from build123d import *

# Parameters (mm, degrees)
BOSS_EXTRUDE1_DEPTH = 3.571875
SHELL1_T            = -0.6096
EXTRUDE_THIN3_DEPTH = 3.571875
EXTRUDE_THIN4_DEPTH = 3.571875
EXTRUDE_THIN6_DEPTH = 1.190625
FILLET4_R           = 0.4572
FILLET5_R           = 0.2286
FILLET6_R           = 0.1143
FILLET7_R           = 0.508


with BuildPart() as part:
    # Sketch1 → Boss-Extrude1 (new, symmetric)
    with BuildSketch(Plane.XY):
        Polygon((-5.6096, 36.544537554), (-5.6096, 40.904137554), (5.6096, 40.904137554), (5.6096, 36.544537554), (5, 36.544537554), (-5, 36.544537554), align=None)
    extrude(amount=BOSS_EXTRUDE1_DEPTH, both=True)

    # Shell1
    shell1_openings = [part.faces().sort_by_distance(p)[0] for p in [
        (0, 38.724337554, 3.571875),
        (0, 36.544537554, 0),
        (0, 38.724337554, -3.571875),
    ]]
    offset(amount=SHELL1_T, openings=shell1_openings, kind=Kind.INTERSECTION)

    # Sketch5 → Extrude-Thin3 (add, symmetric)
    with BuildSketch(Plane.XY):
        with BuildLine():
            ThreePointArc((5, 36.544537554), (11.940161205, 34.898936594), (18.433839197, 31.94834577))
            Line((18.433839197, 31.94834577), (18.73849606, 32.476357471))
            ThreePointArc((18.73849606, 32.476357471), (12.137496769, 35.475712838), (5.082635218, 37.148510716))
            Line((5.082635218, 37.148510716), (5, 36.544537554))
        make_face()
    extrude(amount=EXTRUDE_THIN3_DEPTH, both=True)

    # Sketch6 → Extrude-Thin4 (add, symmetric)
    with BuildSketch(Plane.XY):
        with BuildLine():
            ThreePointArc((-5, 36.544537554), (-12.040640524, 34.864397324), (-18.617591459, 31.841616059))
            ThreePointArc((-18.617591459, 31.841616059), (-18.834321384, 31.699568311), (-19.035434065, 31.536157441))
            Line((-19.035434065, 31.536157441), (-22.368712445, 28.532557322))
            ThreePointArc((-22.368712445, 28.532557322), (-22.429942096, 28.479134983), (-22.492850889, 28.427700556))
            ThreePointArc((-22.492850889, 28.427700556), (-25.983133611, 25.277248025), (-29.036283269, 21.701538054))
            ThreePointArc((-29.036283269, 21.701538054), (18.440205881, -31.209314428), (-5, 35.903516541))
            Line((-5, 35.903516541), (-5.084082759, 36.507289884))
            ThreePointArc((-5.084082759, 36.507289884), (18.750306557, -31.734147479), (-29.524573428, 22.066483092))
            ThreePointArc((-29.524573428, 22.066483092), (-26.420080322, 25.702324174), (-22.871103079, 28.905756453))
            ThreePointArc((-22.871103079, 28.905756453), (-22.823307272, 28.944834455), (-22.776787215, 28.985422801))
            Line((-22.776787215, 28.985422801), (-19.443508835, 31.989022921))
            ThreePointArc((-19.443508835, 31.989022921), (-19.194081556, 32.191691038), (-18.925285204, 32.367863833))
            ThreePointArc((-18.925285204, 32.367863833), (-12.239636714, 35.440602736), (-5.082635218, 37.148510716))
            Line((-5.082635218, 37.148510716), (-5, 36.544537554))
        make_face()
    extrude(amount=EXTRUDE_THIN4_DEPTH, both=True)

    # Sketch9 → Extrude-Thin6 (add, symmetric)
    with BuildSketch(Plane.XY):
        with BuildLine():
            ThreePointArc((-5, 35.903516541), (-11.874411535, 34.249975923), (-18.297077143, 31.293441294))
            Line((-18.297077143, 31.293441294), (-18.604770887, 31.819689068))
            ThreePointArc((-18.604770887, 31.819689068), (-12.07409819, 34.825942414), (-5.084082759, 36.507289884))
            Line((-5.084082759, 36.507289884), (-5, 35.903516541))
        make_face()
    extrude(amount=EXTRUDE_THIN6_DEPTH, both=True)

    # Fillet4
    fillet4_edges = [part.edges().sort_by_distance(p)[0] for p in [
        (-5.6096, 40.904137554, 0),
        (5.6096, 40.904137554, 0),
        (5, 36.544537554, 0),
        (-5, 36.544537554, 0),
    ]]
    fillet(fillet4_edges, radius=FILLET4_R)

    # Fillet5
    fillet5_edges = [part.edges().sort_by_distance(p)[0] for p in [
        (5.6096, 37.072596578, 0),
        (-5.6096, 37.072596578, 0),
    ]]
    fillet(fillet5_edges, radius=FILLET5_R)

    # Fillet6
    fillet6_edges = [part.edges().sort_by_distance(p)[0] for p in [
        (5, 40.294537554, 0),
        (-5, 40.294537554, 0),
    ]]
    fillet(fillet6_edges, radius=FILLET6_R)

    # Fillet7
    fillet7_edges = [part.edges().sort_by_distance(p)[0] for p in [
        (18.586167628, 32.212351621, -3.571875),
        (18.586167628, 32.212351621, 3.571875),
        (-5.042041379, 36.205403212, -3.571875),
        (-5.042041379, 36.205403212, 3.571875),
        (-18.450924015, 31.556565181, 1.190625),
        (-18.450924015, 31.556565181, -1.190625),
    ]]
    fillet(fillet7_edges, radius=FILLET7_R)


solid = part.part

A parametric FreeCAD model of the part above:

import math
import FreeCAD as App
import Part
import Sketcher
Q = App.Units.Quantity


def edges_at(feature, points):
    """Names of the edges that pass closest to the given points."""
    edges = feature.Shape.Edges
    near = lambda p: min(range(len(edges)), key=lambda i: edges[i].distToShape(Part.Vertex(*p))[0])
    return sorted({f"Edge{near(p) + 1}" for p in points})


def faces_at(feature, points):
    """Names of the faces that lie closest to the given points."""
    faces = feature.Shape.Faces
    near = lambda p: min(range(len(faces)), key=lambda i: faces[i].distToShape(Part.Vertex(*p))[0])
    return sorted({f"Face{near(p) + 1}" for p in points})


def add_polygon(sketch, points):
    """Adds a closed chain of lines whose ends are joined by coincident constraints."""
    first, n = sketch.GeometryCount, len(points)
    for a, b in zip(points, points[1:] + points[:1]):
        sketch.addGeometry(Part.LineSegment(App.Vector(*a, 0), App.Vector(*b, 0)), False)
    for i in range(n):
        sketch.addConstraint(Sketcher.Constraint("Coincident", first + i, 2, first + (i + 1) % n, 1))

doc = App.newDocument("Part")
body = doc.addObject("PartDesign::Body", "Body")

# Sketch on XY plane
sketch1 = body.newObject("Sketcher::SketchObject", "Sketch")
sketch1.AttachmentSupport = (doc.getObject("XY_Plane"), [""])
sketch1.MapMode = "FlatFace"
add_polygon(sketch1, [(-5.6096, 40.904138), (-5.6096, 36.544538), (5.6096, 36.544538), (5.6096, 40.904138)])  # lines 0-3
sketch1.addConstraint(Sketcher.Constraint("Vertical", 0))
sketch1.addConstraint(Sketcher.Constraint("Horizontal", 1))
sketch1.addConstraint(Sketcher.Constraint("Vertical", 2))
sketch1.addConstraint(Sketcher.Constraint("Horizontal", 3))
sketch1.addConstraint(Sketcher.Constraint("DistanceX", 1, 1, 1, 2, 11.2192))
sketch1.addConstraint(Sketcher.Constraint("DistanceY", 0, 2, 0, 1, 4.3596))
sketch1.addConstraint(Sketcher.Constraint("DistanceX", 0, 2, -1, 1, 5.6096))
sketch1.addConstraint(Sketcher.Constraint("DistanceY", -1, 1, 0, 2, 36.544538))
pad1 = body.newObject("PartDesign::Pad", "Pad")
pad1.Profile = sketch1
pad1.Length = Q("0.28125 in")
pad1.Midplane = True
doc.recompute()

thickness = body.newObject("PartDesign::Thickness", "Thickness")
thickness.Base = (pad1, faces_at(pad1, [(0, 38.724, 3.572), (0, 36.545, 0), (0, 38.724, -3.572)]))
thickness.Value = Q("0.024 in")
thickness.Reversed = True
thickness.Join = "Intersection"

# Sketch on XY plane
sketch2 = body.newObject("Sketcher::SketchObject", "Sketch001")
sketch2.AttachmentSupport = (doc.getObject("XY_Plane"), [""])
sketch2.MapMode = "FlatFace"
sketch2.addGeometry(Part.ArcOfCircle(Part.Circle(App.Vector(0, 0, 0), App.Vector(0, 0, 1), 36.885), math.radians(60.015533), math.radians(82.209202)), False)
sketch2.addGeometry(Part.LineSegment(App.Vector(18.433839, 31.948346, 0), App.Vector(18.738496, 32.476357, 0)), False)
sketch2.addGeometry(Part.ArcOfCircle(Part.Circle(App.Vector(0, 0, 0), App.Vector(0, 0, 1), 37.4946), math.radians(60.015533), math.radians(82.209202)), False)
sketch2.addGeometry(Part.LineSegment(App.Vector(5.082635, 37.148511, 0), App.Vector(5, 36.544538, 0)), False)
sketch2.addConstraint(Sketcher.Constraint("Coincident", 0, 1, 1, 1))
sketch2.addConstraint(Sketcher.Constraint("Coincident", 1, 2, 2, 1))
sketch2.addConstraint(Sketcher.Constraint("Coincident", 2, 2, 3, 1))
sketch2.addConstraint(Sketcher.Constraint("Coincident", 3, 2, 0, 2))
sketch2.addConstraint(Sketcher.Constraint("Coincident", 0, 3, -1, 1))
sketch2.addConstraint(Sketcher.Constraint("Coincident", 2, 3, -1, 1))
sketch2.addConstraint(Sketcher.Constraint("Radius", 0, 36.885))
sketch2.addConstraint(Sketcher.Constraint("Radius", 2, 37.4946))
sketch2.addConstraint(Sketcher.Constraint("DistanceX", -1, 1, 3, 2, 5.0))
sketch2.addConstraint(Sketcher.Constraint("DistanceX", -1, 1, 0, 1, 18.433839))
sketch2.addConstraint(Sketcher.Constraint("DistanceY", -1, 1, 2, 2, 37.148511))
sketch2.addConstraint(Sketcher.Constraint("DistanceY", 0, 1, 1, 2, 0.528012))
pad2 = body.newObject("PartDesign::Pad", "Pad001")
pad2.Profile = sketch2
pad2.Length = Q("0.28125 in")
pad2.Midplane = True

# Sketch on XY plane
sketch3 = body.newObject("Sketcher::SketchObject", "Sketch002")
sketch3.AttachmentSupport = (doc.getObject("XY_Plane"), [""])
sketch3.MapMode = "FlatFace"
sketch3.addGeometry(Part.ArcOfCircle(Part.Circle(App.Vector(0, 0, 0), App.Vector(0, 0, 1), 36.885), math.radians(97.790798), math.radians(120.314556)), False)
sketch3.addGeometry(Part.LineSegment(App.Vector(-5, 36.544538, 0), App.Vector(-5.082635, 37.148511, 0)), False)
sketch3.addGeometry(Part.ArcOfCircle(Part.Circle(App.Vector(0, 0, 0), App.Vector(0, 0, 1), 37.4946), math.radians(97.790798), math.radians(120.314556)), False)
sketch3.addGeometry(Part.ArcOfCircle(Part.Circle(App.Vector(-17.336796, 29.651075, 0), App.Vector(0, 0, 1), 3.1471), math.radians(120.314556), math.radians(132.021853)), False)
sketch3.addGeometry(Part.LineSegment(App.Vector(-19.443509, 31.989023, 0), App.Vector(-22.776787, 28.985423, 0)), False)
sketch3.addGeometry(Part.ArcOfCircle(Part.Circle(App.Vector(-24.06735, 30.417639, 0), App.Vector(0, 0, 1), 1.927899), math.radians(-51.647897), math.radians(-47.978147)), False)
sketch3.addGeometry(Part.ArcOfCircle(Part.Circle(App.Vector(0, 0, 0), App.Vector(0, 0, 1), 36.8596), math.radians(128.352104), math.radians(143.22579)), False)
sketch3.addGeometry(Part.ArcOfCircle(Part.Circle(App.Vector(0, 0, 0), App.Vector(0, 0, 1), 36.8596), math.radians(143.22579), math.radians(457.928142)), False)
sketch3.addGeometry(Part.LineSegment(App.Vector(-5.084083, 36.50729, 0), App.Vector(-5, 35.903517, 0)), False)
sketch3.addGeometry(Part.ArcOfCircle(Part.Circle(App.Vector(0, 0, 0), App.Vector(0, 0, 1), 36.25), math.radians(143.22579), math.radians(457.928142)), False)
sketch3.addGeometry(Part.ArcOfCircle(Part.Circle(App.Vector(0, 0, 0), App.Vector(0, 0, 1), 36.25), math.radians(128.352104), math.radians(143.22579)), False)
sketch3.addGeometry(Part.ArcOfCircle(Part.Circle(App.Vector(-24.06735, 30.417639, 0), App.Vector(0, 0, 1), 2.5375), math.radians(-51.647897), math.radians(-47.978147)), False)
sketch3.addGeometry(Part.LineSegment(App.Vector(-22.368712, 28.532557, 0), App.Vector(-19.035434, 31.536157, 0)), False)
sketch3.addGeometry(Part.ArcOfCircle(Part.Circle(App.Vector(-17.336796, 29.651075, 0), App.Vector(0, 0, 1), 2.5375), math.radians(120.314556), math.radians(132.021853)), False)
sketch3.addConstraint(Sketcher.Constraint("Coincident", 0, 1, 1, 1))
sketch3.addConstraint(Sketcher.Constraint("Coincident", 1, 2, 2, 1))
sketch3.addConstraint(Sketcher.Constraint("Tangent", 2, 2, 3, 1))
sketch3.addConstraint(Sketcher.Constraint("Tangent", 3, 2, 4, 1))
sketch3.addConstraint(Sketcher.Constraint("Tangent", 4, 2, 5, 2))
sketch3.addConstraint(Sketcher.Constraint("Tangent", 5, 1, 6, 1))
sketch3.addConstraint(Sketcher.Constraint("Tangent", 6, 2, 7, 1))
sketch3.addConstraint(Sketcher.Constraint("Coincident", 7, 2, 8, 1))
sketch3.addConstraint(Sketcher.Constraint("Coincident", 8, 2, 9, 2))
sketch3.addConstraint(Sketcher.Constraint("Tangent", 9, 1, 10, 2))
sketch3.addConstraint(Sketcher.Constraint("Tangent", 10, 1, 11, 1))
sketch3.addConstraint(Sketcher.Constraint("Tangent", 11, 2, 12, 1))
sketch3.addConstraint(Sketcher.Constraint("Tangent", 12, 2, 13, 2))
sketch3.addConstraint(Sketcher.Constraint("Tangent", 13, 1, 0, 2))
sketch3.addConstraint(Sketcher.Constraint("Coincident", 0, 3, -1, 1))
sketch3.addConstraint(Sketcher.Constraint("Coincident", 2, 3, -1, 1))
sketch3.addConstraint(Sketcher.Constraint("Coincident", 6, 3, -1, 1))
sketch3.addConstraint(Sketcher.Constraint("Coincident", 9, 3, -1, 1))
sketch3.addConstraint(Sketcher.Constraint("Coincident", 11, 3, 5, 3))
sketch3.addConstraint(Sketcher.Constraint("Coincident", 13, 3, 3, 3))
sketch3.addConstraint(Sketcher.Constraint("Equal", 6, 7))
sketch3.addConstraint(Sketcher.Constraint("Equal", 9, 10))
sketch3.addConstraint(Sketcher.Constraint("Equal", 11, 13))
sketch3.addConstraint(Sketcher.Constraint("Parallel", 4, 12))
sketch3.addConstraint(Sketcher.Constraint("Vertical", 0, 1, 8, 2))
sketch3.addConstraint(Sketcher.Constraint("Radius", 0, 36.885))
sketch3.addConstraint(Sketcher.Constraint("Radius", 2, 37.4946))
sketch3.addConstraint(Sketcher.Constraint("Radius", 3, 3.1471))
sketch3.addConstraint(Sketcher.Constraint("Radius", 6, 36.8596))
sketch3.addConstraint(Sketcher.Constraint("DistanceX", 0, 1, -1, 1, 5.0))
sketch3.addConstraint(Sketcher.Constraint("DistanceY", -1, 1, 10, 1, 28.427701))
sketch3.addConstraint(Sketcher.Constraint("DistanceY", 4, 2, 3, 2, 3.0036))
sketch3.addConstraint(Sketcher.Constraint("DistanceY", 9, 1, 5, 3, 8.716101))
sketch3.addConstraint(Sketcher.Constraint("DistanceY", -1, 1, 1, 2, 37.148511))
sketch3.addConstraint(Sketcher.Constraint("DistanceY", -1, 1, 7, 2, 36.50729))
sketch3.addConstraint(Sketcher.Constraint("DistanceX", 6, 2, 5, 1, 6.65347))
pad3 = body.newObject("PartDesign::Pad", "Pad002")
pad3.Profile = sketch3
pad3.Length = Q("0.28125 in")
pad3.Midplane = True

# Sketch on XY plane
sketch4 = body.newObject("Sketcher::SketchObject", "Sketch003")
sketch4.AttachmentSupport = (doc.getObject("XY_Plane"), [""])
sketch4.MapMode = "FlatFace"
sketch4.addGeometry(Part.ArcOfCircle(Part.Circle(App.Vector(0, 0, 0), App.Vector(0, 0, 1), 36.25), math.radians(97.928142), math.radians(120.314556)), False)
sketch4.addGeometry(Part.LineSegment(App.Vector(-5, 35.903517, 0), App.Vector(-5.084083, 36.50729, 0)), False)
sketch4.addGeometry(Part.ArcOfCircle(Part.Circle(App.Vector(0, 0, 0), App.Vector(0, 0, 1), 36.8596), math.radians(97.928142), math.radians(120.314556)), False)
sketch4.addGeometry(Part.LineSegment(App.Vector(-18.604771, 31.819689, 0), App.Vector(-18.297077, 31.293441, 0)), False)
sketch4.addConstraint(Sketcher.Constraint("Coincident", 0, 1, 1, 1))
sketch4.addConstraint(Sketcher.Constraint("Coincident", 1, 2, 2, 1))
sketch4.addConstraint(Sketcher.Constraint("Coincident", 2, 2, 3, 1))
sketch4.addConstraint(Sketcher.Constraint("Coincident", 3, 2, 0, 2))
sketch4.addConstraint(Sketcher.Constraint("Coincident", 0, 3, -1, 1))
sketch4.addConstraint(Sketcher.Constraint("Coincident", 2, 3, -1, 1))
sketch4.addConstraint(Sketcher.Constraint("Radius", 0, 36.25))
sketch4.addConstraint(Sketcher.Constraint("Radius", 2, 36.8596))
sketch4.addConstraint(Sketcher.Constraint("DistanceX", 0, 1, -1, 1, 5.0))
sketch4.addConstraint(Sketcher.Constraint("DistanceY", 2, 2, 1, 2, 4.687601))
sketch4.addConstraint(Sketcher.Constraint("DistanceY", -1, 1, 1, 2, 36.50729))
sketch4.addConstraint(Sketcher.Constraint("DistanceY", -1, 1, 3, 2, 31.293441))
pad4 = body.newObject("PartDesign::Pad", "Pad003")
pad4.Profile = sketch4
pad4.Length = Q("0.09375 in")
pad4.Midplane = True
doc.recompute()

fillet = body.newObject("PartDesign::Fillet", "Fillet")
fillet.Base = (pad4, edges_at(pad4, [
    (-5.61, 40.904, 0),
    (5.61, 40.904, 0),
    (5, 36.545, 0),
    (-5, 36.545, 0),
]))
fillet.Radius = Q("0.018 in")
doc.recompute()

fillet2 = body.newObject("PartDesign::Fillet", "Fillet001")
fillet2.Base = (fillet, edges_at(fillet, [(5.61, 37.073, 0), (-5.61, 37.073, 0)]))
fillet2.Radius = Q("0.009 in")
doc.recompute()

fillet3 = body.newObject("PartDesign::Fillet", "Fillet002")
fillet3.Base = (fillet2, edges_at(fillet2, [(5, 40.295, 0), (-5, 40.295, 0)]))
fillet3.Radius = Q("0.0045 in")
doc.recompute()

fillet4 = body.newObject("PartDesign::Fillet", "Fillet003")
fillet4.Base = (fillet3, edges_at(fillet3, [
    (18.586, 32.212, -3.572),
    (18.586, 32.212, 3.572),
    (-5.042, 36.205, -3.572),
    (-5.042, 36.205, 3.572),
    (-18.451, 31.557, 1.191),
    (-18.451, 31.557, -1.191),
]))
fillet4.Radius = Q("0.02 in")

doc.recompute()
